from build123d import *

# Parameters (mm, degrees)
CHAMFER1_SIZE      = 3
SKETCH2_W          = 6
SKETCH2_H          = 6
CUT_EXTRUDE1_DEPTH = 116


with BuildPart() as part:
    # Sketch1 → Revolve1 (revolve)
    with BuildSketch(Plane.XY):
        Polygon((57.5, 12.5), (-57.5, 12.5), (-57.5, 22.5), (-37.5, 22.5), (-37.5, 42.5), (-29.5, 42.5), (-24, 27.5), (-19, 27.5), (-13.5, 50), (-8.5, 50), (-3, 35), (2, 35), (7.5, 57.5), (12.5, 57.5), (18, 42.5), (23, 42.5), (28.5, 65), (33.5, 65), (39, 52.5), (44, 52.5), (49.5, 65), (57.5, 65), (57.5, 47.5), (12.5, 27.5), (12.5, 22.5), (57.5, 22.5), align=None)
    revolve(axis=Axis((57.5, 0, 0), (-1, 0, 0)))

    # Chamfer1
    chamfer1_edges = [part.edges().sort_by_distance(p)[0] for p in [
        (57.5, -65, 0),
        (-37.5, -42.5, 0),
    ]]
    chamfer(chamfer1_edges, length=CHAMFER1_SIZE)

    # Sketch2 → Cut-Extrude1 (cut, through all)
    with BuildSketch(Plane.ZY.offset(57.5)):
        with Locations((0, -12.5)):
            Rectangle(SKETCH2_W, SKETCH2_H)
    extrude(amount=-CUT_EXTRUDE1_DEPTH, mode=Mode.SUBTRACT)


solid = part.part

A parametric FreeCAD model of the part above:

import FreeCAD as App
import Part
import Sketcher


def edges_at(feature, points):
    """Names of the edges that pass closest to the given points."""
    edges = feature.Shape.Edges
    near = lambda p: min(range(len(edges)), key=lambda i: edges[i].distToShape(Part.Vertex(*p))[0])
    return sorted({f"Edge{near(p) + 1}" for p in points})


def add_polygon(sketch, points):
    """Adds a closed chain of lines whose ends are joined by coincident constraints."""
    first, n = sketch.GeometryCount, len(points)
    for a, b in zip(points, points[1:] + points[:1]):
        sketch.addGeometry(Part.LineSegment(App.Vector(*a, 0), App.Vector(*b, 0)), False)
    for i in range(n):
        sketch.addConstraint(Sketcher.Constraint("Coincident", first + i, 2, first + (i + 1) % n, 1))

doc = App.newDocument("Part")
params = doc.addObject("Spreadsheet::Sheet", "Params")
for row, (alias, value) in enumerate([
    ("sketch1_width", "115 mm"),
    ("sketch1_width2", "45 mm"),
    ("sketch1_width3", "8 mm"),
    ("sketch1_width4", "5 mm"),
    ("sketch1_width5", "20 mm"),
    ("revolution_angle", "360 deg"),
    ("chamfer_size", "3 mm"),
    ("sketch2_width", "6 mm"),
], start=1):
    params.set(f"A{row}", alias)
    params.set(f"B{row}", "=" + value)
    params.setAlias(f"B{row}", alias)

body = doc.addObject("PartDesign::Body", "Body")

sketch1 = doc.addObject("Sketcher::SketchObject", "Sketch")
body.addObject(sketch1)
sketch1.AttachmentSupport = (doc.XY_Plane, [""])
sketch1.MapMode = "FlatFace"
add_polygon(sketch1, [(-57.5, 12.5), (57.5, 12.5), (57.5, 22.5), (12.5, 22.5), (12.5, 27.5), (57.5, 47.5), (57.5, 65), (49.5, 65), (44, 52.5), (39, 52.5), (33.5, 65), (28.5, 65), (23, 42.5), (18, 42.5), (12.5, 57.5), (7.5, 57.5), (2, 35), (-3, 35), (-8.5, 50), (-13.5, 50), (-19, 27.5), (-24, 27.5), (-29.5, 42.5), (-37.5, 42.5), (-37.5, 22.5), (-57.5, 22.5)])
sketch1.addConstraint([
    Sketcher.Constraint("Horizontal", 0),
    Sketcher.Constraint("Vertical", 1),
    Sketcher.Constraint("Horizontal", 2),
    Sketcher.Constraint("Vertical", 3),
    Sketcher.Constraint("Vertical", 5),
    Sketcher.Constraint("Horizontal", 6),
    Sketcher.Constraint("Horizontal", 8),
    Sketcher.Constraint("Horizontal", 10),
    Sketcher.Constraint("Horizontal", 12),
    Sketcher.Constraint("Horizontal", 14),
    Sketcher.Constraint("Horizontal", 16),
    Sketcher.Constraint("Horizontal", 18),
    Sketcher.Constraint("Horizontal", 20),
    Sketcher.Constraint("Horizontal", 22),
    Sketcher.Constraint("Vertical", 23),
    Sketcher.Constraint("Horizontal", 24),
    Sketcher.Constraint("Vertical", 25),
    Sketcher.Constraint("Symmetric", 1, 2, 24, 2, -2),
    Sketcher.Constraint("Parallel", 11, 15),
    Sketcher.Constraint("Parallel", 13, 17),
    Sketcher.Constraint("Parallel", 15, 19),
    Sketcher.Constraint("Parallel", 17, 21),
    Sketcher.Constraint("Horizontal", 6, 2, 9, 2),
    Sketcher.Constraint("Horizontal", 3, 2, 19, 2),
    Sketcher.Constraint("Horizontal", 12, 2, 21, 2),
    Sketcher.Constraint("Vertical", 1, 2, 4, 2),
    Sketcher.Constraint("Vertical", 3, 2, 13, 2),
    Sketcher.Constraint("Equal", 8, 10),
    Sketcher.Constraint("Equal", 10, 12),
    Sketcher.Constraint("Equal", 12, 14),
    Sketcher.Constraint("Equal", 14, 16),
    Sketcher.Constraint("Equal", 16, 18),
    Sketcher.Constraint("Equal", 18, 20),
    Sketcher.Constraint("Equal", 6, 22),
    Sketcher.Constraint("Equal", 20, 3),
    Sketcher.Constraint("Equal", 24, 23),
    Sketcher.Constraint("Equal", 7, 9),
    Sketcher.Constraint("Equal", 11, 15),
    Sketcher.Constraint("Equal", 13, 17),
    Sketcher.Constraint("Equal", 15, 19),
    Sketcher.Constraint("Equal", 17, 21),
    Sketcher.Constraint("DistanceX", 0, 1, 0, 2, 115.0),
    Sketcher.Constraint("DistanceX", 2, 2, 2, 1, 45.0),
    Sketcher.Constraint("DistanceX", 6, 2, 6, 1, 8.0),
    Sketcher.Constraint("DistanceX", 8, 2, 8, 1, 5.0),
    Sketcher.Constraint("DistanceX", 24, 2, 24, 1, 20.0),
    Sketcher.Constraint("DistanceY", 1, 1, 1, 2, 10.0),
    Sketcher.Constraint("DistanceY", 5, 1, 5, 2, 17.5),
    Sketcher.Constraint("DistanceY", -1, 1, 5, 2, 65.0),
    Sketcher.Constraint("DistanceX", -1, 1, 11, 2, 23.0),
    Sketcher.Constraint("DistanceY", 4, 2, 7, 2, 5.0),
])
sketch1.setExpression("Constraints[67]", "Params.sketch1_width")
sketch1.setExpression("Constraints[68]", "Params.sketch1_width2")
sketch1.setExpression("Constraints[69]", "Params.sketch1_width3")
sketch1.setExpression("Constraints[70]", "Params.sketch1_width4")
sketch1.setExpression("Constraints[71]", "Params.sketch1_width5")
revolution = doc.addObject("PartDesign::Revolution", "Revolution")
body.addObject(revolution)
revolution.Profile = sketch1
revolution.ReferenceAxis = (sketch1, ["H_Axis"])
revolution.setExpression("Angle", "Params.revolution_angle")
doc.recompute()

chamfer = doc.addObject("PartDesign::Chamfer", "Chamfer")
body.addObject(chamfer)
chamfer.Base = (revolution, edges_at(revolution, [(57.5, -65, 0), (-37.5, -42.5, 0)]))
chamfer.setExpression("Size", "Params.chamfer_size")

sketch2 = doc.addObject("Sketcher::SketchObject", "Sketch001")
body.addObject(sketch2)
sketch2.AttachmentSupport = (doc.YZ_Plane, [""])
sketch2.MapMode = "FlatFace"
sketch2.AttachmentOffset = App.Placement(App.Vector(0, 0, -57.5), App.Rotation())
add_polygon(sketch2, [(-9.5, -3), (-15.5, -3), (-15.5, 3), (-9.5, 3)])
sketch2.addConstraint([
    Sketcher.Constraint("Horizontal", 0),
    Sketcher.Constraint("Vertical", 1),
    Sketcher.Constraint("Horizontal", 2),
    Sketcher.Constraint("Vertical", 3),
    Sketcher.Constraint("Equal", 2, 1),
    Sketcher.Constraint("DistanceX", 0, 2, 0, 1, 6.0),
    Sketcher.Constraint("DistanceY", 0, 2, -1, 1, 3.0),
    Sketcher.Constraint("DistanceX", 0, 2, -1, 1, 15.5),
])
sketch2.setExpression("Constraints[9]", "Params.sketch2_width")
pocket1 = doc.addObject("PartDesign::Pocket", "Pocket")
body.addObject(pocket1)
pocket1.Profile = sketch2
pocket1.Type = "ThroughAll"
pocket1.Reversed = True

doc.recompute()
